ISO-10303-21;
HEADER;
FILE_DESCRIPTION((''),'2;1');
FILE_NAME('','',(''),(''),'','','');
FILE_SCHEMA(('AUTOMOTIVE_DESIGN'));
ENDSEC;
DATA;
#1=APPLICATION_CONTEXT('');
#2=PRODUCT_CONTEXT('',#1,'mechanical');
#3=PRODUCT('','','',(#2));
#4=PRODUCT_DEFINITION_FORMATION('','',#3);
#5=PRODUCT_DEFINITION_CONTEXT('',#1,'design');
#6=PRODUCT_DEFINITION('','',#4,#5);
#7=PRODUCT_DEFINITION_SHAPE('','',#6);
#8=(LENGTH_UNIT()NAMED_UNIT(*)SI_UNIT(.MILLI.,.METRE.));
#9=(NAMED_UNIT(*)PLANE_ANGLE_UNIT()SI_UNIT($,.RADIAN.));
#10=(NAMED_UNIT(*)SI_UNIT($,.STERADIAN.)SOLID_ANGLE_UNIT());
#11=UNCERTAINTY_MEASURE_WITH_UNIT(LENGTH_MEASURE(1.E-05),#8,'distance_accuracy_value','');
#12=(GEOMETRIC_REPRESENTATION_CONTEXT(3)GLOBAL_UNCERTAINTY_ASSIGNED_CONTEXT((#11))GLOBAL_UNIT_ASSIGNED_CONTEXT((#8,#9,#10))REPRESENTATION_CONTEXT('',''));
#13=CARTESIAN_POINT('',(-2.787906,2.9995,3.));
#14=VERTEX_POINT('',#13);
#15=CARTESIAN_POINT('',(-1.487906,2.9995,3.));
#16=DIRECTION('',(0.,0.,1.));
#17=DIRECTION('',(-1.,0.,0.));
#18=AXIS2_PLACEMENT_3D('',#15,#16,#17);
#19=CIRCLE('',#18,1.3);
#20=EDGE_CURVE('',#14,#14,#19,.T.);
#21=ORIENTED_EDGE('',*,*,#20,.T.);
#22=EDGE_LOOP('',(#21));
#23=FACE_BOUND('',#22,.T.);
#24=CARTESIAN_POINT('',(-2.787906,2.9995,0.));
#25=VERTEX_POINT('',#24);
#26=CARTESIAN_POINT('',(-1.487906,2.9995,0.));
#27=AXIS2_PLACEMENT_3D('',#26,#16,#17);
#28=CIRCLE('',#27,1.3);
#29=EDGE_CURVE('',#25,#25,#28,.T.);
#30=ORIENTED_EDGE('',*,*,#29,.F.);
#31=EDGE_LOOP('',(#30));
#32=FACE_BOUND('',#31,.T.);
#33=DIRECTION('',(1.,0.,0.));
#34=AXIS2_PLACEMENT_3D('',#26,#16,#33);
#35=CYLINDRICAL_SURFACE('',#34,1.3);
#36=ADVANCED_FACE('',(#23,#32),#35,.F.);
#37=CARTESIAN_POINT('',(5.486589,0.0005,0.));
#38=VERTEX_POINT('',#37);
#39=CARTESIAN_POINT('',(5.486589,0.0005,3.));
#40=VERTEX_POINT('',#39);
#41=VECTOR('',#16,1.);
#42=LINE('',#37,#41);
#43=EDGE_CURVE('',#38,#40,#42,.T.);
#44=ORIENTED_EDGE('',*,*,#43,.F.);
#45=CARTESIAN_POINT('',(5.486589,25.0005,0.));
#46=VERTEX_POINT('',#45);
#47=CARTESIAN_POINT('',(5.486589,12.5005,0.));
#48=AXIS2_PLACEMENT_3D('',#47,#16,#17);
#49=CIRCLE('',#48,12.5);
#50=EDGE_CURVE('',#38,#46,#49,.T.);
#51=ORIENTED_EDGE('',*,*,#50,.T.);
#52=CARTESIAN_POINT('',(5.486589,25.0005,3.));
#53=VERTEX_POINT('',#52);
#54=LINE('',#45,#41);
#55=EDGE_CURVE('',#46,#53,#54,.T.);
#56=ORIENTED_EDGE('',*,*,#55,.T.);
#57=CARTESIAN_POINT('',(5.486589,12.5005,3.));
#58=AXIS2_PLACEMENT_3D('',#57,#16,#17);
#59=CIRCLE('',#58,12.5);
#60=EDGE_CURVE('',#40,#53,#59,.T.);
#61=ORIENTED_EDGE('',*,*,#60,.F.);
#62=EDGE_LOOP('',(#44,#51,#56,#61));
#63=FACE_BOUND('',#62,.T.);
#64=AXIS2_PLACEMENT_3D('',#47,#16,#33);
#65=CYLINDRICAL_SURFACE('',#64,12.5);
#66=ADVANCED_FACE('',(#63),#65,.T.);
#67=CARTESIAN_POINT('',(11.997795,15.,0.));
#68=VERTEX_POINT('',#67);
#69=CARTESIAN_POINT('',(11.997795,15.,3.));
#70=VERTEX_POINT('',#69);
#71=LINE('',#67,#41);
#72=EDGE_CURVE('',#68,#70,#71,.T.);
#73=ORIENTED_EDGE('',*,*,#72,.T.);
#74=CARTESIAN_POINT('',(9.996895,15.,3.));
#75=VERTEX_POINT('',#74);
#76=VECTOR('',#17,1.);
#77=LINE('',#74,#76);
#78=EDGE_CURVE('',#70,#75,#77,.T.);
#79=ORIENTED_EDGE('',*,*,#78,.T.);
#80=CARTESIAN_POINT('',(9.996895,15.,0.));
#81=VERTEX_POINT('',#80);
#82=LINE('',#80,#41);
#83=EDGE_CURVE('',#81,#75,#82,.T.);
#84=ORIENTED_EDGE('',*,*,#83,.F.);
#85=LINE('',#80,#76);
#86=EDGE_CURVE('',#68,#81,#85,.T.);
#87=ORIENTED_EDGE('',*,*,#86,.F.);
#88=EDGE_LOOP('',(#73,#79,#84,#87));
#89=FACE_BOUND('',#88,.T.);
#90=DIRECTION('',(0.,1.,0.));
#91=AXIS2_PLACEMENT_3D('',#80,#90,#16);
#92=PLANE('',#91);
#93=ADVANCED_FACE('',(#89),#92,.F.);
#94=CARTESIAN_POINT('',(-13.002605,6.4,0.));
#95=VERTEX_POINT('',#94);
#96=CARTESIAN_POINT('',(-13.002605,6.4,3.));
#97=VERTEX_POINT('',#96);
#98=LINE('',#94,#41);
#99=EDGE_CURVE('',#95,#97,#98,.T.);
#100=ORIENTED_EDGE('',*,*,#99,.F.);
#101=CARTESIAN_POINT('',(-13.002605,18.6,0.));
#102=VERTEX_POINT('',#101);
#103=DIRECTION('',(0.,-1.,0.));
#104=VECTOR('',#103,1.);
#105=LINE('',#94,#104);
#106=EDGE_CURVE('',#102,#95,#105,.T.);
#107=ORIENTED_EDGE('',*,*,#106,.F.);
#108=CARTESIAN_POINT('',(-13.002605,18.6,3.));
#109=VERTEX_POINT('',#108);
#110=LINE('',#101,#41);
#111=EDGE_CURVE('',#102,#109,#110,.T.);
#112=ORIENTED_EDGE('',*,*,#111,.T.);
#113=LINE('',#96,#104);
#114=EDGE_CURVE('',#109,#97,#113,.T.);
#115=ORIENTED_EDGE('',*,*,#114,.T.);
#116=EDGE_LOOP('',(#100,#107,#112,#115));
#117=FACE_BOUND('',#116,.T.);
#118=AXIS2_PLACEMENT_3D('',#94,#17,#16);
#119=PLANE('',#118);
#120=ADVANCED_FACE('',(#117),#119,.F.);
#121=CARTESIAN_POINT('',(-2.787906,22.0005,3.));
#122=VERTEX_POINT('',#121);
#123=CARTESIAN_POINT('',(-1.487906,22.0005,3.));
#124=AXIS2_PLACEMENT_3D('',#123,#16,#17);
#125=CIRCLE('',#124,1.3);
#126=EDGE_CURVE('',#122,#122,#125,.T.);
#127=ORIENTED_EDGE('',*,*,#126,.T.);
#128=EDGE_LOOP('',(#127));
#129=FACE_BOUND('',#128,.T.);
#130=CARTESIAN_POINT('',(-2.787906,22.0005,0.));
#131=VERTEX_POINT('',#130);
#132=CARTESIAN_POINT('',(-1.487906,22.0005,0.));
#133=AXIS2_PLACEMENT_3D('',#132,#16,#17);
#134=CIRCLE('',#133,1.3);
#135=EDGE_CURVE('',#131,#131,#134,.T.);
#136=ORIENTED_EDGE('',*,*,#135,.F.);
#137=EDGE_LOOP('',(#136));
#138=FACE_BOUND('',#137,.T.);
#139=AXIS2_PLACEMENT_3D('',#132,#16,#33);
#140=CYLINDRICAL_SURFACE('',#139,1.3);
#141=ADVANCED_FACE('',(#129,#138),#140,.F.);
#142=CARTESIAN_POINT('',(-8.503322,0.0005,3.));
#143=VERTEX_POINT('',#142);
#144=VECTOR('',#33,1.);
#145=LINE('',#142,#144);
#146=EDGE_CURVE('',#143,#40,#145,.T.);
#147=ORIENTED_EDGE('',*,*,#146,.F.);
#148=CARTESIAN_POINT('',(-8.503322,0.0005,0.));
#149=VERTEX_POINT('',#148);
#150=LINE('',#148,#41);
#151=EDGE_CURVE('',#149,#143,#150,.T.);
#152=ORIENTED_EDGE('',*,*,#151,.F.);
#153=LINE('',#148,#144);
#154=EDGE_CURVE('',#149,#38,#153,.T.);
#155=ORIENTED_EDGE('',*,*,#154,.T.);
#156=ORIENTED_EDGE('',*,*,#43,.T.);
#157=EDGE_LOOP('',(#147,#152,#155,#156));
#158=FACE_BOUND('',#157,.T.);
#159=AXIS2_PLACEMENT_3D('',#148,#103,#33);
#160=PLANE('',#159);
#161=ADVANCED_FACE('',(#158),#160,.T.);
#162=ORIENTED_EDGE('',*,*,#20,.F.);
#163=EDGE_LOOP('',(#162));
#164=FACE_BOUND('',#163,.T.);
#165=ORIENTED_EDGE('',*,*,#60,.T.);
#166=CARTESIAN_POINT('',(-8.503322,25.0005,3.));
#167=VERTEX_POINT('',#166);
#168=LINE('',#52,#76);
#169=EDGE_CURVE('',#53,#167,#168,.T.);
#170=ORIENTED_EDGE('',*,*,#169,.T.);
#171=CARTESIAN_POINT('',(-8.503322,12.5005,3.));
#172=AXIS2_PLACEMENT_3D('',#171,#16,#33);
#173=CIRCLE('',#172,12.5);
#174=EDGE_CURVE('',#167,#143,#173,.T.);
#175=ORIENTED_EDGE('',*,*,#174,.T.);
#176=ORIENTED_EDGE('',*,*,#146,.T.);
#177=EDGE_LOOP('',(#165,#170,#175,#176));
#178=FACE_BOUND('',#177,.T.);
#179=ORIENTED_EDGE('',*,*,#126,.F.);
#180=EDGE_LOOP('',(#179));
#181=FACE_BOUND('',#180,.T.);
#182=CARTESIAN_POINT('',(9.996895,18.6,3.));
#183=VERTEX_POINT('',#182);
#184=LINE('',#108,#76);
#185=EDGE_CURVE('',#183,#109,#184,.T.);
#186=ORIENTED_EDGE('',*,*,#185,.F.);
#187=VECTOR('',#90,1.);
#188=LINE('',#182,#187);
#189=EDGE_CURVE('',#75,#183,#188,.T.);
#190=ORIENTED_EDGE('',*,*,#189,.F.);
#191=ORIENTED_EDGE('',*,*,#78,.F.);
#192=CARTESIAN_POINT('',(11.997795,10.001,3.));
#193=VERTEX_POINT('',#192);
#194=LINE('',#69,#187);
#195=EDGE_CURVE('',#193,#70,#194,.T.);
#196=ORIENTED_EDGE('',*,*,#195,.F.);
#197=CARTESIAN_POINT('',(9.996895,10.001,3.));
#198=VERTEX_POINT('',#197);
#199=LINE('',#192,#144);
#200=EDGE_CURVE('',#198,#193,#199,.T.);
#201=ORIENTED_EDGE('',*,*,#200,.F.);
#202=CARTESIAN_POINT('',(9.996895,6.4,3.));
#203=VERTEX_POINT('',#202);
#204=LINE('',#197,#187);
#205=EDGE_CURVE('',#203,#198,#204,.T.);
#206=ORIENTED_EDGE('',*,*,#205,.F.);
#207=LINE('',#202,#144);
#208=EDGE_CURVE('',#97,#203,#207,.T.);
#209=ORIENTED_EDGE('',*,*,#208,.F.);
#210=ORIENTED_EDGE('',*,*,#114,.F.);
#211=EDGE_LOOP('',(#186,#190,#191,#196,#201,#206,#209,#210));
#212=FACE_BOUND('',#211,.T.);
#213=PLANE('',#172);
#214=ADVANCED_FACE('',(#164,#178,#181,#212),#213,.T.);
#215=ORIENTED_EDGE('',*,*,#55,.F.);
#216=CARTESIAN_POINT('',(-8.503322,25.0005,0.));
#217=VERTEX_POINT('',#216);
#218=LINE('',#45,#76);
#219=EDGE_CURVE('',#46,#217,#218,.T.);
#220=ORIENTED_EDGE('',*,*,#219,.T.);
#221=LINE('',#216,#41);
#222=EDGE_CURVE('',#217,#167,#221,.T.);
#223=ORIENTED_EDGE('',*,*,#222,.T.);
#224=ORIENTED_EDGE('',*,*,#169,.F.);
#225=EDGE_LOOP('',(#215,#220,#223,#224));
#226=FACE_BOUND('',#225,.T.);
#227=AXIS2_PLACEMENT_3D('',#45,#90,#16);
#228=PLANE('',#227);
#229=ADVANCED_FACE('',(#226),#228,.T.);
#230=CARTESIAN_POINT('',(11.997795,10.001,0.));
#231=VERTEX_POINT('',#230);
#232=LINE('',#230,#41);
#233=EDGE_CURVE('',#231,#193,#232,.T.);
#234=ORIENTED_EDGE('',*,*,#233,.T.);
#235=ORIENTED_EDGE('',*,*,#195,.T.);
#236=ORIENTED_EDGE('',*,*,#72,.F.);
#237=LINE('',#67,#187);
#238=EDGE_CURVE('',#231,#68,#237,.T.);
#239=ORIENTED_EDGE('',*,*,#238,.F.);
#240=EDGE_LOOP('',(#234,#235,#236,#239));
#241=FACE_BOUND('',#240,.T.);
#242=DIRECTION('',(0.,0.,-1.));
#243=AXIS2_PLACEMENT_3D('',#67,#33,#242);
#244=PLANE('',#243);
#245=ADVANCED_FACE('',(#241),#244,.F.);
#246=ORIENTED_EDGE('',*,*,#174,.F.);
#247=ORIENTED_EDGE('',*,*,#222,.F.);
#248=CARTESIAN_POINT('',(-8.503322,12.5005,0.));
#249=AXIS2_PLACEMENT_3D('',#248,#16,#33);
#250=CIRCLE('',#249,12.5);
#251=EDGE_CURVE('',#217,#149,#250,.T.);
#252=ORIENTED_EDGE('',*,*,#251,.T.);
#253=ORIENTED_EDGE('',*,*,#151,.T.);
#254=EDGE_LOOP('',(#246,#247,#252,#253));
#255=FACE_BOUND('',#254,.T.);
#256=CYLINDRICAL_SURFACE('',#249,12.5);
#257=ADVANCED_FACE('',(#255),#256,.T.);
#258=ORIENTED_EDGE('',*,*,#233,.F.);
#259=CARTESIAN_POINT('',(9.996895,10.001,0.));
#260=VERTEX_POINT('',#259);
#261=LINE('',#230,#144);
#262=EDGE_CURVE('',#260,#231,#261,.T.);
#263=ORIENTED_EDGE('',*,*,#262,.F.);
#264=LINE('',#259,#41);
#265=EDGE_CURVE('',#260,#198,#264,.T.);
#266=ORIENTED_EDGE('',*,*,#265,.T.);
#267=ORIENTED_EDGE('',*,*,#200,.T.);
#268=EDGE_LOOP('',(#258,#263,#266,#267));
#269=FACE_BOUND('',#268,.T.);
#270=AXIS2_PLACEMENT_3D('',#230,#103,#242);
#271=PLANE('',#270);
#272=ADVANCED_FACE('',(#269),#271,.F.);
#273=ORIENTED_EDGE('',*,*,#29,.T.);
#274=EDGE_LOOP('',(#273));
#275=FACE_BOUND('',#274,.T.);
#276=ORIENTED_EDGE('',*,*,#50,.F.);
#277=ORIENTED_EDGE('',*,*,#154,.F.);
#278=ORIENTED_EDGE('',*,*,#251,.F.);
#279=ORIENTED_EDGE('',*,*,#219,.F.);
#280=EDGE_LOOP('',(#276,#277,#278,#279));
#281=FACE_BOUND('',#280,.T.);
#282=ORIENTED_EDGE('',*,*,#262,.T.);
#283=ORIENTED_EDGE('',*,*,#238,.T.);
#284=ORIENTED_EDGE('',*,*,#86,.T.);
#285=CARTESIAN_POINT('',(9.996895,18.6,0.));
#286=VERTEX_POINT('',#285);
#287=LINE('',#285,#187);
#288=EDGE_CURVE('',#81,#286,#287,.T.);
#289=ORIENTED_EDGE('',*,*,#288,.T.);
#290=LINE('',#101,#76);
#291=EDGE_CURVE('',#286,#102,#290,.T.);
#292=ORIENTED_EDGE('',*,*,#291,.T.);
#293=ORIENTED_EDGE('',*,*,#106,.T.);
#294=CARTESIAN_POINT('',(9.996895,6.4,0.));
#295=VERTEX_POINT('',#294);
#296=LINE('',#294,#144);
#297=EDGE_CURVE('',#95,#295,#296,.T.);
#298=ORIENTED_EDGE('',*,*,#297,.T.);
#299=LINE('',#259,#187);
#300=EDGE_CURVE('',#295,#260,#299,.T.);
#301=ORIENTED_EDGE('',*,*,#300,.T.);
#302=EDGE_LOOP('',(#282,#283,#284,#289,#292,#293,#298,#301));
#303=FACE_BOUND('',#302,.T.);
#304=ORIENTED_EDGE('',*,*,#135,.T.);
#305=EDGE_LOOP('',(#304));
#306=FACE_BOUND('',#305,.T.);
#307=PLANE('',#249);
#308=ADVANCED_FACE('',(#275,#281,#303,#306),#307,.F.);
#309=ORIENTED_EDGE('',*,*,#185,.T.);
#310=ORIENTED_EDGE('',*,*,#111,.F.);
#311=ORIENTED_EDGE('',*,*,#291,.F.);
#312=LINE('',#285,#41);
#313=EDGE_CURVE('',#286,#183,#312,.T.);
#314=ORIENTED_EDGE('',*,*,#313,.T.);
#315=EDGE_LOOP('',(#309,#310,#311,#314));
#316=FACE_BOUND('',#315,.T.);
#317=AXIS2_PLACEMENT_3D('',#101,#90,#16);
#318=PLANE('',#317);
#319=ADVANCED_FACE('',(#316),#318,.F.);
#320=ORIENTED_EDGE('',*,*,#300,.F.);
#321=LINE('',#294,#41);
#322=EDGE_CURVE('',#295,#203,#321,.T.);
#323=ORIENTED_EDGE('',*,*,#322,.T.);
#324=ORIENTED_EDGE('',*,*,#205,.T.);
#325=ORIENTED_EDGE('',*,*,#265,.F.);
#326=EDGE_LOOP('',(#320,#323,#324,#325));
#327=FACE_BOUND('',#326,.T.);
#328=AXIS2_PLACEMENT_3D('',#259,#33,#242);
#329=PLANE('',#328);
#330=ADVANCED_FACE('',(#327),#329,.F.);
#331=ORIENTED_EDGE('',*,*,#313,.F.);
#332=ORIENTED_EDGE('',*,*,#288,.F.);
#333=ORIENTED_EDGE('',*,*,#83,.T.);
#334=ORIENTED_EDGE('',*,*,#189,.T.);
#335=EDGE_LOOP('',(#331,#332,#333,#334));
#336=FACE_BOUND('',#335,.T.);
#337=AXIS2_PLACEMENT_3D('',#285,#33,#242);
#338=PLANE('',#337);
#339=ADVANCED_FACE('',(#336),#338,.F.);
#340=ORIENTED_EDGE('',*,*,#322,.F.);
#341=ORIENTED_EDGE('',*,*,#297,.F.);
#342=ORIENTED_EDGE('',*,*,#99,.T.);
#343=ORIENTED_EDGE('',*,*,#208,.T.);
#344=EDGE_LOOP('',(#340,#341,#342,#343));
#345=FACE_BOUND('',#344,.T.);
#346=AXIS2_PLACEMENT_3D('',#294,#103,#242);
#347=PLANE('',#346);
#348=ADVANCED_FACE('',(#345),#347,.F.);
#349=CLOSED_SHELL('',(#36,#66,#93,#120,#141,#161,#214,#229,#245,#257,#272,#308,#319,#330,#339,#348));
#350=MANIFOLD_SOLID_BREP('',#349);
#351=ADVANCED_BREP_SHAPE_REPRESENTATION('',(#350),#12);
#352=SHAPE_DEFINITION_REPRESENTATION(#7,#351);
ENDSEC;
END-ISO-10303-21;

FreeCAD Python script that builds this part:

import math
import FreeCAD as App
import Part
import Sketcher
from FreeCAD import Vector
Q = App.Units.Quantity

doc = App.newDocument("Part")
body = doc.addObject("PartDesign::Body", "Body")

# Sketch on XY plane
sketch1 = body.newObject("Sketcher::SketchObject", "Sketch")
sketch1.AttachmentSupport = (doc.getObject("XY_Plane"), [""])
sketch1.MapMode = "FlatFace"
sketch1.AttachmentOffset = App.Placement(Vector(0, 0, 3), App.Rotation())
sketch1.addGeometry([
    Part.LineSegment(Vector(-8.5, 0, 0), Vector(5.5, 0, 0)),  # 0
    Part.ArcOfCircle(Part.Circle(Vector(5.5, 12.5, 0), Vector(0, 0, 1), 12.5), math.radians(-90), math.radians(90)),  # 1
    Part.LineSegment(Vector(5.5, 25, 0), Vector(-8.5, 25, 0)),  # 2
    Part.ArcOfCircle(Part.Circle(Vector(-8.5, 12.5, 0), Vector(0, 0, 1), 12.5), math.radians(90), math.radians(270)),  # 3
    Part.Circle(Vector(-1.5, 3, 0), Vector(0, 0, 1), 1.3),  # 4
    Part.LineSegment(Vector(10, 15, 0), Vector(12, 15, 0)),  # 5
    Part.LineSegment(Vector(12, 15, 0), Vector(12, 10, 0)),  # 6
    Part.LineSegment(Vector(12, 10, 0), Vector(10, 10, 0)),  # 7
    Part.LineSegment(Vector(10, 10, 0), Vector(10, 6.4, 0)),  # 8
    Part.LineSegment(Vector(10, 6.4, 0), Vector(-13, 6.4, 0)),  # 9
    Part.LineSegment(Vector(-13, 6.4, 0), Vector(-13, 18.6, 0)),  # 10
    Part.LineSegment(Vector(-13, 18.6, 0), Vector(10, 18.6, 0)),  # 11
    Part.LineSegment(Vector(10, 18.6, 0), Vector(10, 15, 0)),  # 12
    Part.Circle(Vector(-1.5, 22, 0), Vector(0, 0, 1), 1.3),  # 13
], False)
sketch1.addConstraint([
    Sketcher.Constraint("Tangent", 0, 2, 1, 1),
    Sketcher.Constraint("Tangent", 1, 2, 2, 1),
    Sketcher.Constraint("Tangent", 2, 2, 3, 1),
    Sketcher.Constraint("Tangent", 3, 2, 0, 1),
    Sketcher.Constraint("Coincident", 5, 2, 6, 1),
    Sketcher.Constraint("Coincident", 6, 2, 7, 1),
    Sketcher.Constraint("Coincident", 7, 2, 8, 1),
    Sketcher.Constraint("Coincident", 8, 2, 9, 1),
    Sketcher.Constraint("Coincident", 9, 2, 10, 1),
    Sketcher.Constraint("Coincident", 10, 2, 11, 1),
    Sketcher.Constraint("Coincident", 11, 2, 12, 1),
    Sketcher.Constraint("Coincident", 12, 2, 5, 1),
    Sketcher.Constraint("Horizontal", 0),
    Sketcher.Constraint("Horizontal", 2),
    Sketcher.Constraint("Horizontal", 5),
    Sketcher.Constraint("Vertical", 6),
    Sketcher.Constraint("Horizontal", 7),
    Sketcher.Constraint("Vertical", 8),
    Sketcher.Constraint("Horizontal", 9),
    Sketcher.Constraint("Vertical", 10),
    Sketcher.Constraint("Horizontal", 11),
    Sketcher.Constraint("Vertical", 12),
    Sketcher.Constraint("Equal", 4, 13),
    Sketcher.Constraint("Vertical", 4, 3, 13, 3),
    Sketcher.Constraint("Vertical", 8, 2, 11, 2),
    Sketcher.Constraint("Diameter", 4, Q("2.6 mm")),
    Sketcher.Constraint("Radius", 1, Q("12.5 mm")),
    Sketcher.Constraint("DistanceY", 10, 1, 10, 2, Q("12.2 mm")),
    Sketcher.Constraint("DistanceY", 12, 2, 12, 1, Q("3.6 mm")),
    Sketcher.Constraint("DistanceY", -1, 1, 5, 2, Q("15 mm")),
    Sketcher.Constraint("DistanceY", 0, 2, 13, 3, Q("22 mm")),
    Sketcher.Constraint("DistanceY", 6, 2, 6, 1, Q("4.999 mm")),
    Sketcher.Constraint("DistanceX", 5, 1, 5, 2, Q("2.0009 mm")),
    Sketcher.Constraint("DistanceX", 9, 2, 9, 1, Q("22.9995 mm")),
    Sketcher.Constraint("DistanceY", 4, 3, 1, 3, Q("9.501 mm")),
    Sketcher.Constraint("DistanceX", 0, 1, 0, 2, Q("13.989911 mm")),
    Sketcher.Constraint("DistanceY", -1, 1, 1, 3, Q("12.5005 mm")),
    Sketcher.Constraint("DistanceX", 13, 3, 5, 2, Q("13.485701 mm")),
    Sketcher.Constraint("DistanceX", -1, 1, 1, 3, Q("5.486589 mm")),
    Sketcher.Constraint("DistanceX", 4, 3, -1, 1, Q("1.487906 mm")),
])
pad1 = body.newObject("PartDesign::Pad", "Pad")
pad1.Profile = sketch1
pad1.Length = 3
pad1.Reversed = True

doc.recompute()
